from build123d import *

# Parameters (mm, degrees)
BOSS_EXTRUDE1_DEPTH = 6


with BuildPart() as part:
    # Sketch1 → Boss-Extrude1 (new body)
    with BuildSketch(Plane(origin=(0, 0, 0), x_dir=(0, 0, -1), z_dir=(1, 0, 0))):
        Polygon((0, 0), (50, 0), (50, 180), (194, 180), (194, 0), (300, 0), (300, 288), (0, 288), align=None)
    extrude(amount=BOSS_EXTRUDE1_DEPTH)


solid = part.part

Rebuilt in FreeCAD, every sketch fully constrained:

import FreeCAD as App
import Part
import Sketcher
from FreeCAD import Vector

doc = App.newDocument("Part")
body = doc.addObject("PartDesign::Body", "Body")

# Sketch on YZ plane
sketch1 = body.newObject("Sketcher::SketchObject", "Sketch")
sketch1.AttachmentSupport = (doc.getObject("YZ_Plane"), [""])
sketch1.MapMode = "FlatFace"
sketch1.addGeometry([
    Part.LineSegment(Vector(0, 0, 0), Vector(0, -50, 0)),  # 0
    Part.LineSegment(Vector(0, -50, 0), Vector(180, -50, 0)),  # 1
    Part.LineSegment(Vector(180, -50, 0), Vector(180, -194, 0)),  # 2
    Part.LineSegment(Vector(180, -194, 0), Vector(0, -194, 0)),  # 3
    Part.LineSegment(Vector(0, -194, 0), Vector(0, -300, 0)),  # 4
    Part.LineSegment(Vector(0, -300, 0), Vector(288, -300, 0)),  # 5
    Part.LineSegment(Vector(288, -300, 0), Vector(288, 0, 0)),  # 6
    Part.LineSegment(Vector(288, 0, 0), Vector(0, 0, 0)),  # 7
], False)
sketch1.addConstraint([
    Sketcher.Constraint("Coincident", 0, 2, 1, 1),
    Sketcher.Constraint("Coincident", 1, 2, 2, 1),
    Sketcher.Constraint("Coincident", 2, 2, 3, 1),
    Sketcher.Constraint("Coincident", 3, 2, 4, 1),
    Sketcher.Constraint("Coincident", 4, 2, 5, 1),
    Sketcher.Constraint("Coincident", 5, 2, 6, 1),
    Sketcher.Constraint("Coincident", 6, 2, 7, 1),
    Sketcher.Constraint("Coincident", 7, 2, 0, 1),
    Sketcher.Constraint("Vertical", 0),
    Sketcher.Constraint("Horizontal", 1),
    Sketcher.Constraint("Vertical", 2),
    Sketcher.Constraint("Horizontal", 3),
    Sketcher.Constraint("Vertical", 4),
    Sketcher.Constraint("Horizontal", 5),
    Sketcher.Constraint("Vertical", 6),
    Sketcher.Constraint("Horizontal", 7),
    Sketcher.Constraint("Coincident", 7, 2, -1, 1),
    Sketcher.Constraint("PointOnObject", 3, 2, -2),
    Sketcher.Constraint("DistanceX", 1, 1, 1, 2, 180.0),
    Sketcher.Constraint("DistanceX", 5, 1, 5, 2, 288.0),
    Sketcher.Constraint("DistanceY", 0, 2, 0, 1, 50.0),
    Sketcher.Constraint("DistanceY", 2, 2, 2, 1, 144.0),
    Sketcher.Constraint("DistanceY", 4, 2, 4, 1, 106.0),
])
pad1 = body.newObject("PartDesign::Pad", "Pad")
pad1.Profile = sketch1
pad1.Length = 6

doc.recompute()
